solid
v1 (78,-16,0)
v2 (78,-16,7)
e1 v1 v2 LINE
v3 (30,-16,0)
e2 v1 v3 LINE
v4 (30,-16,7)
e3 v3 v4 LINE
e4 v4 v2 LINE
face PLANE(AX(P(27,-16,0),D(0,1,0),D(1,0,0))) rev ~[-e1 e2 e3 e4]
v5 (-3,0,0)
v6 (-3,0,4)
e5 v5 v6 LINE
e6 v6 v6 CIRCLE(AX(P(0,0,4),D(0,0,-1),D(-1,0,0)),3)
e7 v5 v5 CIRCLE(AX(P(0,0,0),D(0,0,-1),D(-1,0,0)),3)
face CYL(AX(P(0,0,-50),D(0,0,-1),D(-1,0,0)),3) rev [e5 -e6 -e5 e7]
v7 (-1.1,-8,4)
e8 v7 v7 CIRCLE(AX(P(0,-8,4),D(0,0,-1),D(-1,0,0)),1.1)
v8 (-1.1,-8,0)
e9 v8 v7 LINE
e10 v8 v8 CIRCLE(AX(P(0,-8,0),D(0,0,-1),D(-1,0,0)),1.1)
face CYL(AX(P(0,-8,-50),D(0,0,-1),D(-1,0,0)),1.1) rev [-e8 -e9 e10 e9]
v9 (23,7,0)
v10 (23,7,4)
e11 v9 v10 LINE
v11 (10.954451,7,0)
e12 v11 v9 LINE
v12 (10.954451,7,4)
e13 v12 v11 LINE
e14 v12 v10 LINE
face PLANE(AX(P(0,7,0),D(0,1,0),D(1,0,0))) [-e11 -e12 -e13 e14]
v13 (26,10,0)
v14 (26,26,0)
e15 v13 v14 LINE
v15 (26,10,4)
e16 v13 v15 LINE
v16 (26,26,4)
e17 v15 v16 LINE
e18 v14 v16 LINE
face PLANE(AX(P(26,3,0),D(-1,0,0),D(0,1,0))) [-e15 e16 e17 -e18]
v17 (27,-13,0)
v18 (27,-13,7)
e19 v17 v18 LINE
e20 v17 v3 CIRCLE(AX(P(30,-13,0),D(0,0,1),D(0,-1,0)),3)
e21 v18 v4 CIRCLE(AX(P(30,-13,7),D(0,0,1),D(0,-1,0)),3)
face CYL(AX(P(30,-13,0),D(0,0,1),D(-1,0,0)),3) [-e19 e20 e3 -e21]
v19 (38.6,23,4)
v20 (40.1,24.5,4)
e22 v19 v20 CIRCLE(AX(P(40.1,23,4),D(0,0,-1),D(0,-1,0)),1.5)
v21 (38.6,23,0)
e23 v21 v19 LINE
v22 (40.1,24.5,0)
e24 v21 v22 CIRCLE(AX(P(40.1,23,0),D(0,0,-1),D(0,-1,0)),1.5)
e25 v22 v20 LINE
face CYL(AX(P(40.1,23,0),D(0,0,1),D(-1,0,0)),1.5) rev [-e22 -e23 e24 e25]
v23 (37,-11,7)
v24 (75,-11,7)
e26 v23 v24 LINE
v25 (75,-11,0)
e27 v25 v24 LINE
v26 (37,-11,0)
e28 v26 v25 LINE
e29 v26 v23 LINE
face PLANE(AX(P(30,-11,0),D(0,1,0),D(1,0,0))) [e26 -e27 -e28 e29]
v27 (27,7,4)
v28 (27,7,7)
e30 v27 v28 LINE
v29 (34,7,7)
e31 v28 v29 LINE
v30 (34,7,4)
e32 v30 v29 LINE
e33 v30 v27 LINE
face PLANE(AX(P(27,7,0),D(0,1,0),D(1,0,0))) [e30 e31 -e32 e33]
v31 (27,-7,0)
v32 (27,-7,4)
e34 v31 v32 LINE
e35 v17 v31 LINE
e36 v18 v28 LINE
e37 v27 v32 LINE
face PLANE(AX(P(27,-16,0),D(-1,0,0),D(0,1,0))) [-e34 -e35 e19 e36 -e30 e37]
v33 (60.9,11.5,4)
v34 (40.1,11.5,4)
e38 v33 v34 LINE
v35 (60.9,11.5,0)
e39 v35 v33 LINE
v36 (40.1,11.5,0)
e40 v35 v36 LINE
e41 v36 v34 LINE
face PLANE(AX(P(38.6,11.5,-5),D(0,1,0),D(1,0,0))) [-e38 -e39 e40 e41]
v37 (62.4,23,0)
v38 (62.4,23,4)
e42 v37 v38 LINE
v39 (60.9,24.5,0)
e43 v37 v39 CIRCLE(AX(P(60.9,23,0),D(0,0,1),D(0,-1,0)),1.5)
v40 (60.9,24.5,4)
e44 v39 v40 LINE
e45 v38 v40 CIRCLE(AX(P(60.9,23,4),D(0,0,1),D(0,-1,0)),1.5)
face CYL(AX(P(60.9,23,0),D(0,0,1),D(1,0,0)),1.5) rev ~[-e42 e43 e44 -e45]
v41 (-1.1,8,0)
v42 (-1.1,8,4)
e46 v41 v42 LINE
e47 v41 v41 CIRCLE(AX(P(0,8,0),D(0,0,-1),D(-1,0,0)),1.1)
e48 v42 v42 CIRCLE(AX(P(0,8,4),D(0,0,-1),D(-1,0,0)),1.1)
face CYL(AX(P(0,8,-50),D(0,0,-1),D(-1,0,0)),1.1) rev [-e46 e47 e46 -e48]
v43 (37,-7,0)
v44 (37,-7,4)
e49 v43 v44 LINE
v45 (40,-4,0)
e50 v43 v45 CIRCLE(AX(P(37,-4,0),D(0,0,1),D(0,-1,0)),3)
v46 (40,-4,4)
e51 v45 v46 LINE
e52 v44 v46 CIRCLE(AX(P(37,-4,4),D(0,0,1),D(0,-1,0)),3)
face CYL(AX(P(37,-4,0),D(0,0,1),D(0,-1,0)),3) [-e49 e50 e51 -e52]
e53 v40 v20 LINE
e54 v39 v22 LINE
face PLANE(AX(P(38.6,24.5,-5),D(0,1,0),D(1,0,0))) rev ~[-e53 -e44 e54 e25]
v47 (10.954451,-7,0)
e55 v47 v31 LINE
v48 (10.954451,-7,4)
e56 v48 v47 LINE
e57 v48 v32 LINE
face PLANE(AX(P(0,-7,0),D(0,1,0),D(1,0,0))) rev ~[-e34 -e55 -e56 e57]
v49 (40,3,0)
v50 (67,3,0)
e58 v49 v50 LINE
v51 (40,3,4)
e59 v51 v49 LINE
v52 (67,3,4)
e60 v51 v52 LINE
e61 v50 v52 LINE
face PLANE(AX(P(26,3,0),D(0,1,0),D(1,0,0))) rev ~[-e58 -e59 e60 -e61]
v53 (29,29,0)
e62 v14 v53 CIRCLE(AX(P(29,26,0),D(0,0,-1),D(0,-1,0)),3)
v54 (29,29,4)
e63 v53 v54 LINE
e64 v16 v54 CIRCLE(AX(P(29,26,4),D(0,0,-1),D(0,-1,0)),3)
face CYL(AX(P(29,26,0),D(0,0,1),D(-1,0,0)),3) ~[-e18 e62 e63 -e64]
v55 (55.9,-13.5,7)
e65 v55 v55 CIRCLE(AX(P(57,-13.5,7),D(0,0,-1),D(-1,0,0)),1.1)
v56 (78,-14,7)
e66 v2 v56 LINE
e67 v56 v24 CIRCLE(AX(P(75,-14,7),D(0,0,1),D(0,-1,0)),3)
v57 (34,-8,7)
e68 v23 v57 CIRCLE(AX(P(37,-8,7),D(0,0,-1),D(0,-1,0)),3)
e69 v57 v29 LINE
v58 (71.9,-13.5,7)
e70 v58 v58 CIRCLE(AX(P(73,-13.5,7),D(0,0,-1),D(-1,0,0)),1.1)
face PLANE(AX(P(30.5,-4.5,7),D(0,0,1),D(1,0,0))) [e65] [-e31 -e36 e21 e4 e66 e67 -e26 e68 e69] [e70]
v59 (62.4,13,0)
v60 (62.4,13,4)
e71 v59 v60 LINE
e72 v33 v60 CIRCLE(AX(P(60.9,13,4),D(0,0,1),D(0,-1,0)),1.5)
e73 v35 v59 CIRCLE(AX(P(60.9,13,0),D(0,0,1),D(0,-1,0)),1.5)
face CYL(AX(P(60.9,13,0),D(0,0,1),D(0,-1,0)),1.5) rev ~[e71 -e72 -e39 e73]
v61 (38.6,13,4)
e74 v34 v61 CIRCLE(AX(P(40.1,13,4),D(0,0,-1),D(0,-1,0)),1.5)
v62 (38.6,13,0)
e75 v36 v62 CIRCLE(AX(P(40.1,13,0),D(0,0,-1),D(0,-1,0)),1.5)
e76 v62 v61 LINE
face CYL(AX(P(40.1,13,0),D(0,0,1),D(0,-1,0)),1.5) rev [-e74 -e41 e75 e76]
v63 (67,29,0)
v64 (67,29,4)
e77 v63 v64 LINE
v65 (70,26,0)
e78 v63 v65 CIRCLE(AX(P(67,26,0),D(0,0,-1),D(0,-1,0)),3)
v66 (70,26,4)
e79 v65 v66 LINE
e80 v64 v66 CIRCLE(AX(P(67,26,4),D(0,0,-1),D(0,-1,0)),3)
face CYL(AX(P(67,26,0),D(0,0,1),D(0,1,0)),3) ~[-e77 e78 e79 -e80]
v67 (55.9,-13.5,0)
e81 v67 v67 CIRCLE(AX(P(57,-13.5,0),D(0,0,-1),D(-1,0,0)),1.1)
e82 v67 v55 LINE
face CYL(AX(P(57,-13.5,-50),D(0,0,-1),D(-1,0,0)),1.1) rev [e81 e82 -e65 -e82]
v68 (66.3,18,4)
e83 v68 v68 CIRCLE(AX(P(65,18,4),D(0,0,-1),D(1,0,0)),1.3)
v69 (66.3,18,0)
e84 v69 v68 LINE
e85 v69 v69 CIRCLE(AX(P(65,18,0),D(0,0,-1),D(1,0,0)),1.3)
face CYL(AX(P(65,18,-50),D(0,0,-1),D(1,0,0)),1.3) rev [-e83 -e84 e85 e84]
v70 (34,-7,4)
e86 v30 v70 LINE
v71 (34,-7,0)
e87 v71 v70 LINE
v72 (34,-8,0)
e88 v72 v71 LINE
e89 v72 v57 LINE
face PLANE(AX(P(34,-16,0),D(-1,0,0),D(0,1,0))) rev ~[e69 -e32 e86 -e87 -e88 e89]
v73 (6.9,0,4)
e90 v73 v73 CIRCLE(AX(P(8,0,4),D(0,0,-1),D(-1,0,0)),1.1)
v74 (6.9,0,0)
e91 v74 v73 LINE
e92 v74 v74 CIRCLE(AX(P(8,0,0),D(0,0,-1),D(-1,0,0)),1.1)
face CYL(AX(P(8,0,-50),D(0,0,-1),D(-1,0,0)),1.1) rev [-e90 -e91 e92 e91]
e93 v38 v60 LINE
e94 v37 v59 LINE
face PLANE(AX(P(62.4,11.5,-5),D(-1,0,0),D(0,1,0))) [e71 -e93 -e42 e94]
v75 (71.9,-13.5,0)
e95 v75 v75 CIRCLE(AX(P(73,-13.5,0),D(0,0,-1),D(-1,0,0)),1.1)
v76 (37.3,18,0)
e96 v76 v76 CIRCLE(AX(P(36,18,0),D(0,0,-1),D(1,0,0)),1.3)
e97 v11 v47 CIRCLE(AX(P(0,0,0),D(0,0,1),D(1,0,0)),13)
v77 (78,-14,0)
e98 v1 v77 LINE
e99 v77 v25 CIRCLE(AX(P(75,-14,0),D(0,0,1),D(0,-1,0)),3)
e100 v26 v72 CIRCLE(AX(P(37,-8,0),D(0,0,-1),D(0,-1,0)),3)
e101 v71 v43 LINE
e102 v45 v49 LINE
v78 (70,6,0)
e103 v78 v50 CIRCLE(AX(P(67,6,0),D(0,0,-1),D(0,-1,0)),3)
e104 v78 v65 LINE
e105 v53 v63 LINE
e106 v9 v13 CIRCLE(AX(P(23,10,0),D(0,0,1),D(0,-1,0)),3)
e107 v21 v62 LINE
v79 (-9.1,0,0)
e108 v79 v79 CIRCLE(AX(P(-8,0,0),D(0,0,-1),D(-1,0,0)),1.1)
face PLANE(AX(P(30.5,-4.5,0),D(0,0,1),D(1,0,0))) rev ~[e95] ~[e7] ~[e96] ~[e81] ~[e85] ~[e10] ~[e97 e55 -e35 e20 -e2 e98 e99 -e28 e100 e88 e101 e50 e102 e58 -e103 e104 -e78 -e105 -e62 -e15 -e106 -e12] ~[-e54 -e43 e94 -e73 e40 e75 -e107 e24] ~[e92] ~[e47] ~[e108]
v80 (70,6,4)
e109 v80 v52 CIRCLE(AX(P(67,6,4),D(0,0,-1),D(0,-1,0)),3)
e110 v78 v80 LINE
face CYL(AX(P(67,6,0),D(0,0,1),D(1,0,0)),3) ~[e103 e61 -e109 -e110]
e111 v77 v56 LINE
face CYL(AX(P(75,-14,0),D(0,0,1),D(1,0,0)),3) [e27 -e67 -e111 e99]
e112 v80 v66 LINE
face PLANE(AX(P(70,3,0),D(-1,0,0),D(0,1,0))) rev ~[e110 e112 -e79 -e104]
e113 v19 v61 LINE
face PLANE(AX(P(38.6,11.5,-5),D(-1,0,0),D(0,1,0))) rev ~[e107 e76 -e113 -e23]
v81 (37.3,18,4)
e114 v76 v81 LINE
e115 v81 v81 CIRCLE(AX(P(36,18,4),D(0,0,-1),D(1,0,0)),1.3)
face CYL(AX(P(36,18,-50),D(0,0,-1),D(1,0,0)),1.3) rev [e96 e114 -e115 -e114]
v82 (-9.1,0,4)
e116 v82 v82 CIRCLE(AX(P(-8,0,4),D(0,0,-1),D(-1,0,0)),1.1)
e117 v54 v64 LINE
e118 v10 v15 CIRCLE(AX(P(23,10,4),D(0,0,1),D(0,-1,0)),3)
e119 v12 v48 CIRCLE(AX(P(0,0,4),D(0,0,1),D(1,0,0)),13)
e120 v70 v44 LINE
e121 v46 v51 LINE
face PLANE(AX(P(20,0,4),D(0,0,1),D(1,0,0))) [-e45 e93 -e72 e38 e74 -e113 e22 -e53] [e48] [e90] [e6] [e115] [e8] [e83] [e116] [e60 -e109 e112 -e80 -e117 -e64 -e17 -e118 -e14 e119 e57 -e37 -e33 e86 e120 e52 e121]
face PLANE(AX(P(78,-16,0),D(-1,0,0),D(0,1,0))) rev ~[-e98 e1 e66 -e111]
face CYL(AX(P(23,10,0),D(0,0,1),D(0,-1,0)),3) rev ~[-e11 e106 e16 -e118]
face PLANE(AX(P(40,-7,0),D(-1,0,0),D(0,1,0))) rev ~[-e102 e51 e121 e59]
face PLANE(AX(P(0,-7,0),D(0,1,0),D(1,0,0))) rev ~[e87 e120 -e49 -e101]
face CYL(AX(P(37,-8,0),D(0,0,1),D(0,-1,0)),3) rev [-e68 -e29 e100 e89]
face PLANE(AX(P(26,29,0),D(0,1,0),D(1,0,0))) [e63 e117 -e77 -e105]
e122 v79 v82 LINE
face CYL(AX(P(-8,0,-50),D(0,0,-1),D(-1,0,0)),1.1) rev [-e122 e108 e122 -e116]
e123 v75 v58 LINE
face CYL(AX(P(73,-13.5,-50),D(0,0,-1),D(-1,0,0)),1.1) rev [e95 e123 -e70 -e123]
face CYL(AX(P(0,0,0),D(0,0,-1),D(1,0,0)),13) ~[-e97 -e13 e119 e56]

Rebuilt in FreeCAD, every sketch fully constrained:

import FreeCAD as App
import Part
import Sketcher
from FreeCAD import Vector


def edges_at(feature, points):
    """Names of the edges that pass closest to the given points."""
    edges = feature.Shape.Edges
    near = lambda p: min(range(len(edges)), key=lambda i: edges[i].distToShape(Part.Vertex(*p))[0])
    return sorted({f"Edge{near(p) + 1}" for p in points})


def add_polygon(sketch, points):
    """Adds a closed chain of lines whose ends are joined by coincident constraints."""
    first, n = sketch.GeometryCount, len(points)
    for a, b in zip(points, points[1:] + points[:1]):
        sketch.addGeometry(Part.LineSegment(App.Vector(*a, 0), App.Vector(*b, 0)), False)
    for i in range(n):
        sketch.addConstraint(Sketcher.Constraint("Coincident", first + i, 2, first + (i + 1) % n, 1))

doc = App.newDocument("Part")
body = doc.addObject("PartDesign::Body", "Body")

sketch1 = body.newObject("Sketcher::SketchObject", "Sketch")
sketch1.AttachmentSupport = (doc.getObject("XY_Plane"), [""])
sketch1.MapMode = "FlatFace"
sketch1.addGeometry(Part.Circle(Vector(0, 0, 0), Vector(0, 0, 1), 13), False)
sketch1.addConstraint([
    Sketcher.Constraint("Coincident", 0, 3, -1, 1),
    Sketcher.Constraint("Diameter", 0, 26.0),
])
pad1 = body.newObject("PartDesign::Pad", "Pad")
pad1.Profile = sketch1
pad1.Length = 4

sketch2 = body.newObject("Sketcher::SketchObject", "Sketch001")
sketch2.AttachmentSupport = (doc.getObject("XY_Plane"), [""])
sketch2.MapMode = "FlatFace"
add_polygon(sketch2, [(0, 7), (0, -7), (40, -7), (40, 7)])
sketch2.addConstraint([
    Sketcher.Constraint("Vertical", 0),
    Sketcher.Constraint("Horizontal", 1),
    Sketcher.Constraint("Vertical", 2),
    Sketcher.Constraint("Horizontal", 3),
    Sketcher.Constraint("Symmetric", 0, 2, 3, 2, -1, 1),
    Sketcher.Constraint("DistanceX", 1, 1, 1, 2, 40.0),
    Sketcher.Constraint("DistanceY", 0, 2, 0, 1, 14.0),
])
pad2 = body.newObject("PartDesign::Pad", "Pad001")
pad2.Profile = sketch2
pad2.Length = 4

sketch3 = body.newObject("Sketcher::SketchObject", "Sketch002")
sketch3.AttachmentSupport = (doc.getObject("XY_Plane"), [""])
sketch3.MapMode = "FlatFace"
add_polygon(sketch3, [(26, 29), (26, 3), (70, 3), (70, 29)])
sketch3.addConstraint([
    Sketcher.Constraint("Vertical", 0),
    Sketcher.Constraint("Horizontal", 1),
    Sketcher.Constraint("Vertical", 2),
    Sketcher.Constraint("Horizontal", 3),
    Sketcher.Constraint("DistanceX", 1, 1, 1, 2, 44.0),
    Sketcher.Constraint("DistanceY", 0, 2, 0, 1, 26.0),
    Sketcher.Constraint("DistanceX", -1, 1, 0, 2, 26.0),
    Sketcher.Constraint("DistanceY", -1, 1, 0, 2, 3.0),
])
pad3 = body.newObject("PartDesign::Pad", "Pad002")
pad3.Profile = sketch3
pad3.Length = 4

sketch4 = body.newObject("Sketcher::SketchObject", "Sketch003")
sketch4.AttachmentSupport = (doc.getObject("XY_Plane"), [""])
sketch4.MapMode = "FlatFace"
sketch4.AttachmentOffset = App.Placement(Vector(0, 0, -5), App.Rotation())
add_polygon(sketch4, [(39, 24), (39, 12), (62, 12), (62, 24)])
sketch4.addConstraint([
    Sketcher.Constraint("Vertical", 0),
    Sketcher.Constraint("Horizontal", 1),
    Sketcher.Constraint("Vertical", 2),
    Sketcher.Constraint("Horizontal", 3),
    Sketcher.Constraint("DistanceY", 0, 2, 0, 1, 13.0),
    Sketcher.Constraint("DistanceX", 1, 1, 1, 2, 23.8),
    Sketcher.Constraint("DistanceX", -1, 1, 0, 2, 38.6),
    Sketcher.Constraint("DistanceY", -1, 1, 0, 2, 11.5),
])
pocket1 = body.newObject("PartDesign::Pocket", "Pocket")
pocket1.Profile = sketch4
pocket1.Type = "ThroughAll"
pocket1.Reversed = True

sketch5 = body.newObject("Sketcher::SketchObject", "Sketch004")
sketch5.AttachmentSupport = (doc.getObject("XY_Plane"), [""])
sketch5.MapMode = "FlatFace"
sketch5.AttachmentOffset = App.Placement(Vector(0, 0, -50), App.Rotation())
sketch5.addGeometry([
    Part.Circle(Vector(36, 18, 0), Vector(0, 0, 1), 1.3),
    Part.Circle(Vector(65, 18, 0), Vector(0, 0, 1), 1.3),
], False)
sketch5.addConstraint([
    Sketcher.Constraint("Equal", 0, 1),
    Sketcher.Constraint("Horizontal", 0, 3, 1, 3),
    Sketcher.Constraint("Diameter", 0, 2.6),
    Sketcher.Constraint("DistanceX", -1, 1, 0, 3, 36.0),
    Sketcher.Constraint("DistanceY", -1, 1, 0, 3, 18.0),
    Sketcher.Constraint("DistanceX", -1, 1, 1, 3, 65.0),
])
pocket2 = body.newObject("PartDesign::Pocket", "Pocket001")
pocket2.Profile = sketch5
pocket2.Type = "ThroughAll"
pocket2.Reversed = True
body2 = doc.addObject("PartDesign::Body", "Body001")

sketch6 = body2.newObject("Sketcher::SketchObject", "Sketch005")
sketch6.AttachmentSupport = (doc.getObject("XY_Plane001"), [""])
sketch6.MapMode = "FlatFace"
add_polygon(sketch6, [(30, -11), (30, -16), (78, -16), (78, -11)])
sketch6.addConstraint([
    Sketcher.Constraint("Vertical", 0),
    Sketcher.Constraint("Horizontal", 1),
    Sketcher.Constraint("Vertical", 2),
    Sketcher.Constraint("Horizontal", 3),
    Sketcher.Constraint("DistanceX", 1, 1, 1, 2, 48.0),
    Sketcher.Constraint("DistanceY", 0, 2, 0, 1, 5.0),
    Sketcher.Constraint("DistanceX", -1, 1, 0, 2, 30.0),
    Sketcher.Constraint("DistanceY", 0, 2, -1, 1, 16.0),
])
pad4 = body2.newObject("PartDesign::Pad", "Pad003")
pad4.Profile = sketch6
pad4.Length = 7
body.AllowCompound = True
doc.recompute()

boolean = body.newObject("PartDesign::Boolean", "Boolean")
boolean.Type = "Fuse"
boolean.addObjects([body2])

sketch7 = body.newObject("Sketcher::SketchObject", "Sketch006")
sketch7.AttachmentSupport = (doc.getObject("XY_Plane"), [""])
sketch7.MapMode = "FlatFace"
add_polygon(sketch7, [(27, 7), (27, -16), (34, -16), (34, 7)])
sketch7.addConstraint([
    Sketcher.Constraint("Vertical", 0),
    Sketcher.Constraint("Horizontal", 1),
    Sketcher.Constraint("Vertical", 2),
    Sketcher.Constraint("Horizontal", 3),
    Sketcher.Constraint("DistanceX", 1, 1, 1, 2, 7.0),
    Sketcher.Constraint("DistanceY", 0, 2, 0, 1, 23.0),
    Sketcher.Constraint("DistanceX", -1, 1, 0, 2, 27.0),
    Sketcher.Constraint("DistanceY", 0, 2, -1, 1, 16.0),
])
pad5 = body.newObject("PartDesign::Pad", "Pad004")
pad5.Profile = sketch7
pad5.Length = 7

sketch8 = body.newObject("Sketcher::SketchObject", "Sketch007")
sketch8.AttachmentSupport = (doc.getObject("XY_Plane"), [""])
sketch8.MapMode = "FlatFace"
sketch8.AttachmentOffset = App.Placement(Vector(0, 0, -50), App.Rotation())
sketch8.addGeometry(Part.Circle(Vector(0, 0, 0), Vector(0, 0, 1), 3), False)
sketch8.addConstraint([
    Sketcher.Constraint("Coincident", 0, 3, -1, 1),
    Sketcher.Constraint("Diameter", 0, 6.0),
])
pocket3 = body.newObject("PartDesign::Pocket", "Pocket002")
pocket3.Profile = sketch8
pocket3.Type = "ThroughAll"
pocket3.Reversed = True

sketch9 = body.newObject("Sketcher::SketchObject", "Sketch008")
sketch9.AttachmentSupport = (doc.getObject("XY_Plane"), [""])
sketch9.MapMode = "FlatFace"
sketch9.AttachmentOffset = App.Placement(Vector(0, 0, -50), App.Rotation())
sketch9.addGeometry([
    Part.Circle(Vector(0, -8, 0), Vector(0, 0, 1), 1.1),
    Part.Circle(Vector(0, 8, 0), Vector(0, 0, 1), 1.1),
    Part.Circle(Vector(-8, 0, 0), Vector(0, 0, 1), 1.1),
    Part.Circle(Vector(8, 0, 0), Vector(0, 0, 1), 1.1),
], False)
sketch9.addConstraint([
    Sketcher.Constraint("Equal", 0, 1),
    Sketcher.Constraint("Equal", 1, 2),
    Sketcher.Constraint("Equal", 2, 3),
    Sketcher.Constraint("Symmetric", 0, 3, 1, 3, -1, 1),
    Sketcher.Constraint("Symmetric", 2, 3, 3, 3, -1, 1),
    Sketcher.Constraint("PointOnObject", 0, 3, -2),
    Sketcher.Constraint("PointOnObject", 2, 3, -1),
    Sketcher.Constraint("Diameter", 0, 2.2),
    Sketcher.Constraint("DistanceY", 0, 3, -1, 1, 8.0),
    Sketcher.Constraint("DistanceX", 2, 3, -1, 1, 8.0),
])
pocket4 = body.newObject("PartDesign::Pocket", "Pocket003")
pocket4.Profile = sketch9
pocket4.Type = "ThroughAll"
pocket4.Reversed = True

sketch10 = body.newObject("Sketcher::SketchObject", "Sketch009")
sketch10.AttachmentSupport = (doc.getObject("XY_Plane"), [""])
sketch10.MapMode = "FlatFace"
sketch10.AttachmentOffset = App.Placement(Vector(0, 0, -50), App.Rotation())
sketch10.addGeometry([
    Part.Circle(Vector(57, -13.5, 0), Vector(0, 0, 1), 1.1),
    Part.Circle(Vector(73, -13.5, 0), Vector(0, 0, 1), 1.1),
], False)
sketch10.addConstraint([
    Sketcher.Constraint("Equal", 0, 1),
    Sketcher.Constraint("Horizontal", 0, 3, 1, 3),
    Sketcher.Constraint("Diameter", 0, 2.2),
    Sketcher.Constraint("DistanceX", -1, 1, 0, 3, 57.0),
    Sketcher.Constraint("DistanceX", -1, 1, 1, 3, 73.0),
    Sketcher.Constraint("DistanceY", 0, 3, -1, 1, 13.5),
])
pocket5 = body.newObject("PartDesign::Pocket", "Pocket004")
pocket5.Profile = sketch10
pocket5.Type = "ThroughAll"
pocket5.Reversed = True
doc.recompute()

fillet = body.newObject("PartDesign::Fillet", "Fillet")
fillet.Base = (pocket5, edges_at(pocket5, [
    (34, -11, 3.5),
    (78, -11, 3.5),
    (40, -7, 2),
    (26, 7, 2),
    (26, 29, 2),
    (70, 3, 2),
    (70, 29, 2),
    (27, -16, 3.5),
]))
fillet.Radius = 3
doc.recompute()

fillet2 = body.newObject("PartDesign::Fillet", "Fillet001")
fillet2.Base = (fillet, edges_at(fillet, [
    (38.6, 24.5, 2),
    (38.6, 11.5, 2),
    (62.4, 11.5, 2),
    (62.4, 24.5, 2),
]))
fillet2.Radius = 1.5

doc.recompute()
